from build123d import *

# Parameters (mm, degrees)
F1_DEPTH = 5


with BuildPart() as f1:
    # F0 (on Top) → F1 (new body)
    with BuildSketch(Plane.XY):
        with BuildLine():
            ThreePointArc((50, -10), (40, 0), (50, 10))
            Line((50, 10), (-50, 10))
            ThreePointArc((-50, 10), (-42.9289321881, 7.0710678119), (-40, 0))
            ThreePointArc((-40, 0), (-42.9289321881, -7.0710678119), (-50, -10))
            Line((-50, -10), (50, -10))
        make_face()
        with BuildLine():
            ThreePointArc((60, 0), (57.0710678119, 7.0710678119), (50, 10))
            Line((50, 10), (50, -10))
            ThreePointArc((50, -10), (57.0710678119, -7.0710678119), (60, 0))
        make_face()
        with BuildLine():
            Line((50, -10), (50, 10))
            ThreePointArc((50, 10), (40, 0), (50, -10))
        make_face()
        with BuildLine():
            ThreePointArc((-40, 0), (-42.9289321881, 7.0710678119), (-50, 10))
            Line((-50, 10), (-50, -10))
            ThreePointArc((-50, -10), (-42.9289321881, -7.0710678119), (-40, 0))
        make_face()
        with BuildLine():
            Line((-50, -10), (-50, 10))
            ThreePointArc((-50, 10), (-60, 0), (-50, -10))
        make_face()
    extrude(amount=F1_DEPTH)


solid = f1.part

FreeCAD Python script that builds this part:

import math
import FreeCAD as App
import Part
import Sketcher
from FreeCAD import Vector

doc = App.newDocument("Part")
params = doc.addObject("Spreadsheet::Sheet", "Params")
for row, (alias, value) in enumerate([
    ("sketch1_radius", "10 mm"),
    ("sketch1_width", "100 mm"),
    ("pad1_length", "5 mm"),
], start=1):
    params.set(f"A{row}", alias)
    params.set(f"B{row}", "=" + value)
    params.setAlias(f"B{row}", alias)

body = doc.addObject("PartDesign::Body", "Body")

sketch1 = body.newObject("Sketcher::SketchObject", "Sketch")
sketch1.AttachmentSupport = (doc.getObject("XY_Plane"), [""])
sketch1.MapMode = "FlatFace"
sketch1.addGeometry([
    Part.LineSegment(Vector(50, 10, 0), Vector(-50, 10, 0)),
    Part.ArcOfCircle(Part.Circle(Vector(-50, 0, 0), Vector(0, 0, 1), 10), math.radians(90), math.radians(270)),
    Part.LineSegment(Vector(-50, -10, 0), Vector(50, -10, 0)),
    Part.ArcOfCircle(Part.Circle(Vector(50, 0, 0), Vector(0, 0, 1), 10), math.radians(-90), math.radians(0)),
    Part.ArcOfCircle(Part.Circle(Vector(50, 0, 0), Vector(0, 0, 1), 10), math.radians(0), math.radians(90)),
], False)
sketch1.addConstraint([
    Sketcher.Constraint("Tangent", 0, 2, 1, 1),
    Sketcher.Constraint("Tangent", 1, 2, 2, 1),
    Sketcher.Constraint("Tangent", 2, 2, 3, 1),
    Sketcher.Constraint("Tangent", 3, 2, 4, 1),
    Sketcher.Constraint("Tangent", 4, 2, 0, 1),
    Sketcher.Constraint("Horizontal", 0),
    Sketcher.Constraint("Horizontal", 2),
    Sketcher.Constraint("Equal", 1, 3),
    Sketcher.Constraint("Symmetric", 1, 3, 3, 3, -1, 1),
    Sketcher.Constraint("PointOnObject", 3, 2, -1),
    Sketcher.Constraint("Radius", 1, 10.0),
    Sketcher.Constraint("DistanceX", 0, 2, 0, 1, 100.0),
])
sketch1.setExpression("Constraints[10]", "Params.sketch1_radius")
sketch1.setExpression("Constraints[11]", "Params.sketch1_width")
pad1 = body.newObject("PartDesign::Pad", "Pad")
pad1.Profile = sketch1
pad1.setExpression("Length", "Params.pad1_length")

doc.recompute()
